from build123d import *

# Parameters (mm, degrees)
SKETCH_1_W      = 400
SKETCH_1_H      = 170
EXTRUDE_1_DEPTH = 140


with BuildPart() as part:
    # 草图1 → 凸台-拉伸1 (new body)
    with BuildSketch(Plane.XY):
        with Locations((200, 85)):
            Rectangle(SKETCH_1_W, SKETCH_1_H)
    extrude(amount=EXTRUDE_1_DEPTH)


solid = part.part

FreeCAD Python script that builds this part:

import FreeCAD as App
import Part
import Sketcher
from FreeCAD import Vector


def add_polygon(sketch, points):
    """Adds a closed chain of lines whose ends are joined by coincident constraints."""
    first, n = sketch.GeometryCount, len(points)
    for a, b in zip(points, points[1:] + points[:1]):
        sketch.addGeometry(Part.LineSegment(App.Vector(*a, 0), App.Vector(*b, 0)), False)
    for i in range(n):
        sketch.addConstraint(Sketcher.Constraint("Coincident", first + i, 2, first + (i + 1) % n, 1))

doc = App.newDocument("Part")
body = doc.addObject("PartDesign::Body", "Body")

sketch1 = body.newObject("Sketcher::SketchObject", "Sketch")
sketch1.AttachmentSupport = (doc.getObject("XY_Plane"), [""])
sketch1.MapMode = "FlatFace"
add_polygon(sketch1, [(0, 170), (0, 0), (400, 0), (400, 170)])
sketch1.addConstraint(Sketcher.Constraint("Vertical", 0))
sketch1.addConstraint(Sketcher.Constraint("Horizontal", 1))
sketch1.addConstraint(Sketcher.Constraint("Vertical", 2))
sketch1.addConstraint(Sketcher.Constraint("Horizontal", 3))
sketch1.addConstraint(Sketcher.Constraint("Coincident", 0, 2, -1, 1))
sketch1.addConstraint(Sketcher.Constraint("DistanceX", 1, 1, 1, 2, 400.0))
sketch1.addConstraint(Sketcher.Constraint("DistanceY", 0, 2, 0, 1, 170.0))
pad1 = body.newObject("PartDesign::Pad", "Pad")
pad1.Profile = sketch1
pad1.Length = 140

doc.recompute()
